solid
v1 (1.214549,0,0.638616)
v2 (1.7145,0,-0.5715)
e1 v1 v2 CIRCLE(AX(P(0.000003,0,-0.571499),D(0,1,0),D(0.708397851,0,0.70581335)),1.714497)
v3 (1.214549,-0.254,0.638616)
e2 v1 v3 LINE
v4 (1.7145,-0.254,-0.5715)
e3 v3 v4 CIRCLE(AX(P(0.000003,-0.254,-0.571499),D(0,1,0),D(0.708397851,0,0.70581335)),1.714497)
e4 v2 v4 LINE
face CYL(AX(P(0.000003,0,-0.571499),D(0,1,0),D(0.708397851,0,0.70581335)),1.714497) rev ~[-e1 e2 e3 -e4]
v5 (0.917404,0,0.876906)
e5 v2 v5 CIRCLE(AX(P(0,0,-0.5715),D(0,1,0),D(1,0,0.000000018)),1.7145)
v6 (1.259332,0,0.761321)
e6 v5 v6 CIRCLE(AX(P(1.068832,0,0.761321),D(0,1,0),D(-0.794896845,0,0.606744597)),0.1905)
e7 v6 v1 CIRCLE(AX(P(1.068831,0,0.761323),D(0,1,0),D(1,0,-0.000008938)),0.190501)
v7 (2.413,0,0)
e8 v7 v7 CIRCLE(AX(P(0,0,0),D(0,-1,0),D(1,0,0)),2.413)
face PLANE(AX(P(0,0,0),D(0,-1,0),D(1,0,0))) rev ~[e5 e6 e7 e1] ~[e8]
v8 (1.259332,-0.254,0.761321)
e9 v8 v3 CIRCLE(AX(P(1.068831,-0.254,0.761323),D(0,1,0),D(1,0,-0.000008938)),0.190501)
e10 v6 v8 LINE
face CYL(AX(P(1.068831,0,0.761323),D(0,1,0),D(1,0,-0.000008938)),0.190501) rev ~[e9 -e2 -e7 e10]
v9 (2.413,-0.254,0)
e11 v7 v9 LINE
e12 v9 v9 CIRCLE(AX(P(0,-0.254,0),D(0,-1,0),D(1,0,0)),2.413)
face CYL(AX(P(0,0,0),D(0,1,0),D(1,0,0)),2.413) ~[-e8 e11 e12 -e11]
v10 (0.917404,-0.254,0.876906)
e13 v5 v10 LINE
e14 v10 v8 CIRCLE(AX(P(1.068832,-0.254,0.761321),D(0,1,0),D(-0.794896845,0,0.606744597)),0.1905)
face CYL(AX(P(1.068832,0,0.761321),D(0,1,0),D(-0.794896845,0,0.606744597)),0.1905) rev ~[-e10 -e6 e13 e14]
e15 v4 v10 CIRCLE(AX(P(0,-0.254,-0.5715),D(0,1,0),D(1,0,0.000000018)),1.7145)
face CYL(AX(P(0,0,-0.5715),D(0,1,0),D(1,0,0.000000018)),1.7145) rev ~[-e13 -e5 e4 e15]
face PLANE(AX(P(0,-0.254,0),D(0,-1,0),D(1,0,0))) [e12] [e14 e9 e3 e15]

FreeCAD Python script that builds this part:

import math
import FreeCAD as App
import Part
import Sketcher
from FreeCAD import Vector
Q = App.Units.Quantity

doc = App.newDocument("Part")
body = doc.addObject("PartDesign::Body", "Body")

# Sketch on XZ plane
sketch1 = body.newObject("Sketcher::SketchObject", "Sketch")
sketch1.AttachmentSupport = (doc.getObject("XZ_Plane"), [""])
sketch1.MapMode = "FlatFace"
sketch1.addGeometry([
    Part.Circle(Vector(0, 0, 0), Vector(0, 0, 1), 2.41),  # 0
    Part.ArcOfCircle(Part.Circle(Vector(1.07, 0.76, 0), Vector(0, 0, 1), 0.19), math.radians(0), math.radians(143)),  # 1
    Part.ArcOfCircle(Part.Circle(Vector(1.07, 0.76, 0), Vector(0, 0, 1), 0.19), math.radians(-40), math.radians(0)),  # 2
    Part.ArcOfCircle(Part.Circle(Vector(0, -0.57, 0), Vector(0, 0, 1), 1.71), math.radians(0), math.radians(45)),  # 3
    Part.ArcOfCircle(Part.Circle(Vector(0, -0.57, 0), Vector(0, 0, 1), 1.71), math.radians(58), math.radians(360)),  # 4
], False)
sketch1.addConstraint([
    Sketcher.Constraint("Coincident", 1, 1, 2, 2),
    Sketcher.Constraint("Coincident", 2, 1, 3, 2),
    Sketcher.Constraint("Tangent", 3, 1, 4, 2),
    Sketcher.Constraint("Coincident", 4, 1, 1, 2),
    Sketcher.Constraint("Coincident", 0, 3, -1, 1),
    Sketcher.Constraint("Coincident", 2, 3, 1, 3),
    Sketcher.Constraint("PointOnObject", 4, 3, -2),
    Sketcher.Constraint("Horizontal", 2, 3, 1, 1),
    Sketcher.Constraint("Horizontal", 4, 3, 3, 1),
    Sketcher.Constraint("Diameter", 0, Q("0.19 in")),
    Sketcher.Constraint("Radius", 1, Q("0.0075 in")),
    Sketcher.Constraint("Radius", 3, Q("0.0674999 in")),
    Sketcher.Constraint("Radius", 4, Q("0.0675 in")),
    Sketcher.Constraint("DistanceY", 3, 3, -1, 1, Q("0.0225 in")),
    Sketcher.Constraint("DistanceX", -1, 1, 1, 3, Q("1.068832 mm")),
    Sketcher.Constraint("DistanceY", -1, 1, 1, 3, Q("0.761321 mm")),
])
pad1 = body.newObject("PartDesign::Pad", "Pad")
pad1.Profile = sketch1
pad1.Length = Q("0.01 in")

doc.recompute()
